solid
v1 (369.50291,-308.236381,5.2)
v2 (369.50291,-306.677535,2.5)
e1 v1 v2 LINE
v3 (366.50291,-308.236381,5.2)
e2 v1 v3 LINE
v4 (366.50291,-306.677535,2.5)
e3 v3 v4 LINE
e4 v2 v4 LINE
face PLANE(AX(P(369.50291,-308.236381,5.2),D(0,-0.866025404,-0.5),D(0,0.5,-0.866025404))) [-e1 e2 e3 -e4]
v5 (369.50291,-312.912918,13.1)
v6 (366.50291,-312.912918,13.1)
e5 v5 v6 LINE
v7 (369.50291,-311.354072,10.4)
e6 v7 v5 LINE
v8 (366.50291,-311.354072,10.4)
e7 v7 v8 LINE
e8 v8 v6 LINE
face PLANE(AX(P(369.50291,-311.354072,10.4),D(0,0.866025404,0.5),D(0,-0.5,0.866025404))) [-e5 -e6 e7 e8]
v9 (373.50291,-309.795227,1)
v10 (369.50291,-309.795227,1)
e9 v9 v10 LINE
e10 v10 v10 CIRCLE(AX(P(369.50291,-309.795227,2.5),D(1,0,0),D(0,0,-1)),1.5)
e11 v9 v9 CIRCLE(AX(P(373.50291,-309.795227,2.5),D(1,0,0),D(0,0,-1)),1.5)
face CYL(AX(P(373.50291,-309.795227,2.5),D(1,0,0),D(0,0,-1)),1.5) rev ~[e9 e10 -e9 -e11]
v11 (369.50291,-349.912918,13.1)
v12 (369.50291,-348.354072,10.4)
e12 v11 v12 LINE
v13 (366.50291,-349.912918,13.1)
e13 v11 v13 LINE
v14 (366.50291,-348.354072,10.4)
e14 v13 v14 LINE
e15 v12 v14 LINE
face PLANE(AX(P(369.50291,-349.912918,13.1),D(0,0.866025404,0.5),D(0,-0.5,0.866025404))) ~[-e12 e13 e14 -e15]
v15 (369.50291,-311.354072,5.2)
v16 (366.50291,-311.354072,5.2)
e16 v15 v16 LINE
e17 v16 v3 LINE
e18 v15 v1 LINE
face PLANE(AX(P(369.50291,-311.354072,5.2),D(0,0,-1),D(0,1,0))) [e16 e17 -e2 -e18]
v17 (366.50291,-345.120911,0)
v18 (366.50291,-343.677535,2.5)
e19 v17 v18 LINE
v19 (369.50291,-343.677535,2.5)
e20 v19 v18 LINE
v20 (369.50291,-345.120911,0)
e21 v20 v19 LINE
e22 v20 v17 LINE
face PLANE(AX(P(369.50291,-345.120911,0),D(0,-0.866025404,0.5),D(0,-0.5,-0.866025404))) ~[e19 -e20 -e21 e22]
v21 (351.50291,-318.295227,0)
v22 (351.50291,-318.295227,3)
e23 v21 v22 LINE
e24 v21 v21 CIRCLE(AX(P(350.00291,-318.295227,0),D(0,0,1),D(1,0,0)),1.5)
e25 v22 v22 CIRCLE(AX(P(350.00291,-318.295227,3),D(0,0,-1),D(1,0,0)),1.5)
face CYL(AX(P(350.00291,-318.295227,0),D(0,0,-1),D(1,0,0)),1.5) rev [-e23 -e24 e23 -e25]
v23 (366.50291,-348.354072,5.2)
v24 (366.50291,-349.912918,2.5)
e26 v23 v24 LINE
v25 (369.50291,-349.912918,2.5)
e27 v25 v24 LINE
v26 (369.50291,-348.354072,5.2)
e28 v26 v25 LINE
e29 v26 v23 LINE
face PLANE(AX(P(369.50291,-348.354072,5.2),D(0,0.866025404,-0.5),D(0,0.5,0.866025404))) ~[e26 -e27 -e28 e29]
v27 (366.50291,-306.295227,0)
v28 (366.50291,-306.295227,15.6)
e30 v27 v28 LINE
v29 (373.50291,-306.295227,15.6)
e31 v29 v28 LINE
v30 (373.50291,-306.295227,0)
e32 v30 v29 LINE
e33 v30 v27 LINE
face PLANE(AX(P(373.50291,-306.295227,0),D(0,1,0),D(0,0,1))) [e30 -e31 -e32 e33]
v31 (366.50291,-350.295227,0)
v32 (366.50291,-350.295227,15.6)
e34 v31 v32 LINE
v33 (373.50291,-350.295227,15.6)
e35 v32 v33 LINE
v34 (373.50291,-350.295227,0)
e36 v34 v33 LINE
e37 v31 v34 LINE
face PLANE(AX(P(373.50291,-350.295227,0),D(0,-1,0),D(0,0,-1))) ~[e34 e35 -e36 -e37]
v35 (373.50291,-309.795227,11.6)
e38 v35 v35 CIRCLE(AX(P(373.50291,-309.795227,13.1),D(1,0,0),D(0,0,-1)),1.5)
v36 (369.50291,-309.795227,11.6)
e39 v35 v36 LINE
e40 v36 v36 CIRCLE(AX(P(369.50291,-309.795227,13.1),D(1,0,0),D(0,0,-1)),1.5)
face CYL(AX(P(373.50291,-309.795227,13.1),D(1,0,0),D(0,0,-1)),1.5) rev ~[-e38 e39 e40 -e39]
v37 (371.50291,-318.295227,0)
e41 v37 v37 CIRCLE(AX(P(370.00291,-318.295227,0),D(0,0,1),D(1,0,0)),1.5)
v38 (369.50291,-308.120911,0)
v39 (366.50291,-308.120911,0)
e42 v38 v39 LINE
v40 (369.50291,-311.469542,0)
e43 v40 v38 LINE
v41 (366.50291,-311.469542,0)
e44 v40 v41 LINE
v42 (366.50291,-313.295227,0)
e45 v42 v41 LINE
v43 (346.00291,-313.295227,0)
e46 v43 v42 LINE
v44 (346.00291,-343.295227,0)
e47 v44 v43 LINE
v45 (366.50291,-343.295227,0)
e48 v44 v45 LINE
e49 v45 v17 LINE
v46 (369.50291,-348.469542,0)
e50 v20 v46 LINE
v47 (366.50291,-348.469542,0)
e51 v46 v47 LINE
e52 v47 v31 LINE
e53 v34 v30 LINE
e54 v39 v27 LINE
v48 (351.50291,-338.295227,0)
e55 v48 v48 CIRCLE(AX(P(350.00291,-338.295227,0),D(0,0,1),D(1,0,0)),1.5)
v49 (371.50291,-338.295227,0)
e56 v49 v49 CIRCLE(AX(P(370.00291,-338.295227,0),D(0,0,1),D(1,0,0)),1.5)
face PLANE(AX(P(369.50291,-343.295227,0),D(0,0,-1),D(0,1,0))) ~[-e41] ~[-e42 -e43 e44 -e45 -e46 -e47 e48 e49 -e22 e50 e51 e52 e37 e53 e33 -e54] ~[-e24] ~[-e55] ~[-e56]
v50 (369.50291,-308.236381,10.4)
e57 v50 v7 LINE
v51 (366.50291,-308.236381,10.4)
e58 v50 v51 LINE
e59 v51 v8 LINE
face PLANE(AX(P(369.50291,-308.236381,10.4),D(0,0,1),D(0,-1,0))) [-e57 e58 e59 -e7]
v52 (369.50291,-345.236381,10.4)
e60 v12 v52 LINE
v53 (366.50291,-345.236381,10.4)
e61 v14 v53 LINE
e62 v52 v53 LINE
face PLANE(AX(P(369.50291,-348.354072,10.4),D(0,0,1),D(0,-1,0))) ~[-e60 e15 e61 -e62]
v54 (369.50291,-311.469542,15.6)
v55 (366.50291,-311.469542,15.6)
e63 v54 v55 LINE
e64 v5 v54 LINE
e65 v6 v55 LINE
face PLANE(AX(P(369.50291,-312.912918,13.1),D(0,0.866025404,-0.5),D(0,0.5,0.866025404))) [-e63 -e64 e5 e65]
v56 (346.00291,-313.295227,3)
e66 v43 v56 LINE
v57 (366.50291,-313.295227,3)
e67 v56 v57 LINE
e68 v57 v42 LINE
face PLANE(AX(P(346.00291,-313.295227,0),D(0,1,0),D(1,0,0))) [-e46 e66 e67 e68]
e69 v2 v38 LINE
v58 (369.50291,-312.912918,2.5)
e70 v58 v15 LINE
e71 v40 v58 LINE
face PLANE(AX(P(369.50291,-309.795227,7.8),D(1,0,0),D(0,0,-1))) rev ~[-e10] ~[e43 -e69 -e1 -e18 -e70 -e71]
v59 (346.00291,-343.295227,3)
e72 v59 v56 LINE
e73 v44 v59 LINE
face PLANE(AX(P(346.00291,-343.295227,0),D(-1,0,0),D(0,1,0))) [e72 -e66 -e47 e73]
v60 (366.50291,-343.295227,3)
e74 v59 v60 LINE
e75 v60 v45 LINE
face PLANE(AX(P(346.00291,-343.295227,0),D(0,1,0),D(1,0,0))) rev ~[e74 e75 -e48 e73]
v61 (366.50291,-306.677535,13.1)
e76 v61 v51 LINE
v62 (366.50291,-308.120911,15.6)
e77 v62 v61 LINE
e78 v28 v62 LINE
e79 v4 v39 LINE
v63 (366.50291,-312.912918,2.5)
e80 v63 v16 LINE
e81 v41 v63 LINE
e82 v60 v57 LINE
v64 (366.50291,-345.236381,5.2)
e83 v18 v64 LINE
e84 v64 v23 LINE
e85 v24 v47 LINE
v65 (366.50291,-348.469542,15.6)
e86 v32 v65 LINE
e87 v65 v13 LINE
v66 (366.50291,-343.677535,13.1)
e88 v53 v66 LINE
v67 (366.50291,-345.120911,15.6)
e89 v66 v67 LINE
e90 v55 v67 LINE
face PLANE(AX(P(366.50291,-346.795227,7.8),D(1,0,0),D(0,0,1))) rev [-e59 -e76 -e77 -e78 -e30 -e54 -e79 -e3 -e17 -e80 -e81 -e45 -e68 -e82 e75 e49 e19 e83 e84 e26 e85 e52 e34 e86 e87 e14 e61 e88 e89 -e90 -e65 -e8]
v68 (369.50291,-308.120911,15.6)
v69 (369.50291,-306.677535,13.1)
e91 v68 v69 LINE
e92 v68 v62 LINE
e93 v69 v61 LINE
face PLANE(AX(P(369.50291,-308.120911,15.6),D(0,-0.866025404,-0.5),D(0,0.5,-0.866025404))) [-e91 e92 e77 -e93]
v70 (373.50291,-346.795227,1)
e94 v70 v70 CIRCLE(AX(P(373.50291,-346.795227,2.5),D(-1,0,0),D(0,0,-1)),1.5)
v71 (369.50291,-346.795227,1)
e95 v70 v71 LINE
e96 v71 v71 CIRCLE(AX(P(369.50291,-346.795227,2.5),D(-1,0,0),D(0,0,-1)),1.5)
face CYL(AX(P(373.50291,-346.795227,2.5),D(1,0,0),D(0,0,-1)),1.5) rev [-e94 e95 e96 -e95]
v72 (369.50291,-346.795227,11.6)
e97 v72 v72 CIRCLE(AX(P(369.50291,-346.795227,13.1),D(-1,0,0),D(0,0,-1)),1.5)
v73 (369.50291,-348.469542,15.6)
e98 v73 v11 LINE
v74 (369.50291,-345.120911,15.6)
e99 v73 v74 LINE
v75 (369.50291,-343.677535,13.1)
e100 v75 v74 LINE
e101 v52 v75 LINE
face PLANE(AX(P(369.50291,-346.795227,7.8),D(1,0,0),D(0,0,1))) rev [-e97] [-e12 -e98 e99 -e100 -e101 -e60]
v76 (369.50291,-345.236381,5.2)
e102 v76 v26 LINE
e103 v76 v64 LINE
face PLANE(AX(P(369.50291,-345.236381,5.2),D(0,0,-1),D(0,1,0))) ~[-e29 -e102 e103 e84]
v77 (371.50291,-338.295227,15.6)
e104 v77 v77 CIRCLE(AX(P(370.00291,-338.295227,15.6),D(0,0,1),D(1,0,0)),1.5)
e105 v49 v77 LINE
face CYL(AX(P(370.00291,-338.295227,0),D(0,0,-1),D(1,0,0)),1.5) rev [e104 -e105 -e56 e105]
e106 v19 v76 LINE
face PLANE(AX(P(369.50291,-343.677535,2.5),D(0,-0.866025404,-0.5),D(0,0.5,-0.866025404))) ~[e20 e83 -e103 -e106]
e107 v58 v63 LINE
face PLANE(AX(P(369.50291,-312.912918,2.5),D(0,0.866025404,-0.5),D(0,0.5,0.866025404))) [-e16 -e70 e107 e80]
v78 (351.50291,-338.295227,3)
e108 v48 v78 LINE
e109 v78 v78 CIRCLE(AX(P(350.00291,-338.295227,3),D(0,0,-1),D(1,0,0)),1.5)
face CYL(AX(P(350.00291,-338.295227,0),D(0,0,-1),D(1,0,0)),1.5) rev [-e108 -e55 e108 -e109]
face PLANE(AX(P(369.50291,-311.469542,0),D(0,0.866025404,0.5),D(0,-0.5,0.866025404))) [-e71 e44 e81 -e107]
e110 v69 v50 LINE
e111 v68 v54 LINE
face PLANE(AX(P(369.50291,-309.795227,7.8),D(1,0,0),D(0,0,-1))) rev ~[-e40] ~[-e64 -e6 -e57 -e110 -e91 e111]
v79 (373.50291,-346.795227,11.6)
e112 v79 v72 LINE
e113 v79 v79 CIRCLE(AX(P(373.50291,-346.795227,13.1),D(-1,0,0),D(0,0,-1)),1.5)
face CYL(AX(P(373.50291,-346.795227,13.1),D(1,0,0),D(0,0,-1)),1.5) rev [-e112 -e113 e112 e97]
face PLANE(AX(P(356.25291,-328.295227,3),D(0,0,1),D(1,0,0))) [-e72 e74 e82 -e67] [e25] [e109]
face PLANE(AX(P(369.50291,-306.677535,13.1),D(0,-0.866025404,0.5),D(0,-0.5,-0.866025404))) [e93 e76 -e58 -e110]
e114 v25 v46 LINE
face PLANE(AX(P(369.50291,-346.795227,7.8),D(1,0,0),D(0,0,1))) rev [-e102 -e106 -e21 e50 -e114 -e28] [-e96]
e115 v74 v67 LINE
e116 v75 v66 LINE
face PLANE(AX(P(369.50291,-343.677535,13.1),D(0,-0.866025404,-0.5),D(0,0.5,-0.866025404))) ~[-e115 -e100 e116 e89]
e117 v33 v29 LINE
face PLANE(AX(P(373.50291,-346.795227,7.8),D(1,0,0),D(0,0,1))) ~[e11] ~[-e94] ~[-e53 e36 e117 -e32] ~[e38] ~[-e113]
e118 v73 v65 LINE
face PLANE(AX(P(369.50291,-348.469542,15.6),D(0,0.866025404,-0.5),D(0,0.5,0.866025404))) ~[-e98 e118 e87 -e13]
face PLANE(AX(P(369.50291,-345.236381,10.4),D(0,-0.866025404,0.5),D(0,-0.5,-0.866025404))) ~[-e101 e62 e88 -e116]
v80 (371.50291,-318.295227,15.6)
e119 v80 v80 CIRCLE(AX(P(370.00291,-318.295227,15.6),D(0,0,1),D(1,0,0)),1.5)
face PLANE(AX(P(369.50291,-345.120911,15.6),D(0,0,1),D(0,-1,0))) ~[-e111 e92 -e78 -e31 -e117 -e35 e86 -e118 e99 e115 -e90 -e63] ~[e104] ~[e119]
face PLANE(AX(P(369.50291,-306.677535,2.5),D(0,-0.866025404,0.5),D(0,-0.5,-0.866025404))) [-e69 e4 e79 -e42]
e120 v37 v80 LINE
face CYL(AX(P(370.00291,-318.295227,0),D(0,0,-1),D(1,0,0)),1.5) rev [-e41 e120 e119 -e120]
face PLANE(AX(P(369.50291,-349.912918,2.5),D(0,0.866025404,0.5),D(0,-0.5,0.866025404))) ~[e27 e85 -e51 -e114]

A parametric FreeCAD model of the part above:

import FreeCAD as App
import Part
import Sketcher

V = App.Vector
Q = App.Units.Quantity

doc = App.newDocument("Part")
body = doc.addObject("PartDesign::Body", "Body")

# Sketch on XY plane
sketch1 = body.newObject("Sketcher::SketchObject", "Sketch")
sketch1.AttachmentSupport = (doc.getObject("XY_Plane"), [""])
sketch1.MapMode = "FlatFace"
sketch1.addGeometry([
    Part.LineSegment(V(346.00291, -313.295227, 0), V(346.00291, -343.295227, 0)),  # 0
    Part.LineSegment(V(346.00291, -343.295227, 0), V(373.50291, -343.295227, 0)),  # 1
    Part.LineSegment(V(373.50291, -343.295227, 0), V(373.50291, -313.295227, 0)),  # 2
    Part.LineSegment(V(373.50291, -313.295227, 0), V(346.00291, -313.295227, 0)),  # 3
    Part.Circle(V(350.00291, -338.295227, 0), V(0, 0, 1), 1.5),  # 4
    Part.Circle(V(370.00291, -338.295227, 0), V(0, 0, 1), 1.5),  # 5
    Part.Circle(V(350.00291, -318.295227, 0), V(0, 0, 1), 1.5),  # 6
    Part.Circle(V(370.00291, -318.295227, 0), V(0, 0, 1), 1.5),  # 7
], False)
sketch1.addConstraint([
    Sketcher.Constraint("Coincident", 0, 2, 1, 1),
    Sketcher.Constraint("Coincident", 1, 2, 2, 1),
    Sketcher.Constraint("Coincident", 2, 2, 3, 1),
    Sketcher.Constraint("Coincident", 3, 2, 0, 1),
    Sketcher.Constraint("Vertical", 0),
    Sketcher.Constraint("Horizontal", 1),
    Sketcher.Constraint("Vertical", 2),
    Sketcher.Constraint("Horizontal", 3),
    Sketcher.Constraint("Equal", 4, 5),
    Sketcher.Constraint("Equal", 5, 6),
    Sketcher.Constraint("Equal", 6, 7),
    Sketcher.Constraint("Horizontal", 4, 3, 5, 3),
    Sketcher.Constraint("Horizontal", 6, 3, 7, 3),
    Sketcher.Constraint("Vertical", 4, 3, 6, 3),
    Sketcher.Constraint("Vertical", 5, 3, 7, 3),
    Sketcher.Constraint("Diameter", 4, 3.0),
    Sketcher.Constraint("DistanceY", 0, 2, 0, 1, 30.0),
    Sketcher.Constraint("DistanceX", 1, 1, 1, 2, 27.5),
    Sketcher.Constraint("DistanceX", 4, 3, 5, 3, 20.0),
    Sketcher.Constraint("DistanceY", 4, 3, 6, 3, 20.0),
    Sketcher.Constraint("DistanceX", 0, 2, 4, 3, 4.0),
    Sketcher.Constraint("DistanceY", 0, 2, 4, 3, 5.0),
    Sketcher.Constraint("DistanceX", -1, 1, 4, 3, 350.00291),
    Sketcher.Constraint("DistanceY", 4, 3, -1, 1, 338.295227),
])
pad1 = body.newObject("PartDesign::Pad", "Pad")
pad1.Profile = sketch1
pad1.Length = 5

# Sketch on XY plane
sketch2 = body.newObject("Sketcher::SketchObject", "Sketch001")
sketch2.AttachmentSupport = (doc.getObject("XY_Plane"), [""])
sketch2.MapMode = "FlatFace"
sketch2.addGeometry([
    Part.LineSegment(V(366.50291, -313.295227, 0), V(366.50291, -343.295227, 0)),  # 0
    Part.LineSegment(V(366.50291, -343.295227, 0), V(373.50291, -343.295227, 0)),  # 1
    Part.LineSegment(V(373.50291, -343.295227, 0), V(373.50291, -313.295227, 0)),  # 2
    Part.LineSegment(V(373.50291, -313.295227, 0), V(366.50291, -313.295227, 0)),  # 3
    Part.Circle(V(370.00291, -338.295227, 0), V(0, 0, 1), 1.5),  # 4
    Part.Circle(V(370.00291, -318.295227, 0), V(0, 0, 1), 1.5),  # 5
], False)
sketch2.addConstraint([
    Sketcher.Constraint("Coincident", 0, 2, 1, 1),
    Sketcher.Constraint("Coincident", 1, 2, 2, 1),
    Sketcher.Constraint("Coincident", 2, 2, 3, 1),
    Sketcher.Constraint("Coincident", 3, 2, 0, 1),
    Sketcher.Constraint("Vertical", 0),
    Sketcher.Constraint("Horizontal", 1),
    Sketcher.Constraint("Vertical", 2),
    Sketcher.Constraint("Horizontal", 3),
    Sketcher.Constraint("Equal", 4, 5),
    Sketcher.Constraint("Vertical", 4, 3, 5, 3),
    Sketcher.Constraint("Diameter", 4, 3.0),
    Sketcher.Constraint("DistanceX", 1, 1, 1, 2, 7.0),
    Sketcher.Constraint("DistanceY", 0, 2, 0, 1, 30.0),
    Sketcher.Constraint("DistanceY", 4, 3, 5, 3, 20.0),
    Sketcher.Constraint("DistanceY", 0, 2, 4, 3, 5.0),
    Sketcher.Constraint("DistanceX", 0, 2, 4, 3, 3.5),
    Sketcher.Constraint("DistanceX", -1, 1, 4, 3, 370.00291),
    Sketcher.Constraint("DistanceY", 4, 3, -1, 1, 338.295227),
])
pad2 = body.newObject("PartDesign::Pad", "Pad001")
pad2.Profile = sketch2
pad2.Length = 15.6

# Sketch on YZ plane
sketch3 = body.newObject("Sketcher::SketchObject", "Sketch002")
sketch3.AttachmentSupport = (doc.getObject("YZ_Plane"), [""])
sketch3.MapMode = "FlatFace"
sketch3.AttachmentOffset = App.Placement(V(0, 0, 373.50291), App.Rotation())
sketch3.addGeometry([
    Part.LineSegment(V(-313.295227, 15.6, 0), V(-313.295227, 0, 0)),  # 0
    Part.LineSegment(V(-313.295227, 0, 0), V(-306.295227, 0, 0)),  # 1
    Part.LineSegment(V(-306.295227, 0, 0), V(-306.295227, 15.6, 0)),  # 2
    Part.LineSegment(V(-306.295227, 15.6, 0), V(-313.295227, 15.6, 0)),  # 3
    Part.Circle(V(-309.795227, 13.1, 0), V(0, 0, 1), 1.5),  # 4
    Part.Circle(V(-309.795227, 2.5, 0), V(0, 0, 1), 1.5),  # 5
], False)
sketch3.addConstraint([
    Sketcher.Constraint("Coincident", 0, 2, 1, 1),
    Sketcher.Constraint("Coincident", 1, 2, 2, 1),
    Sketcher.Constraint("Coincident", 2, 2, 3, 1),
    Sketcher.Constraint("Coincident", 3, 2, 0, 1),
    Sketcher.Constraint("Vertical", 0),
    Sketcher.Constraint("Horizontal", 1),
    Sketcher.Constraint("Vertical", 2),
    Sketcher.Constraint("Horizontal", 3),
    Sketcher.Constraint("Equal", 4, 5),
    Sketcher.Constraint("PointOnObject", 0, 2, -1),
    Sketcher.Constraint("Vertical", 4, 3, 5, 3),
    Sketcher.Constraint("Diameter", 4, 3.0),
    Sketcher.Constraint("DistanceX", 1, 1, 1, 2, 7.0),
    Sketcher.Constraint("DistanceY", 0, 2, 0, 1, 15.6),
    Sketcher.Constraint("DistanceY", -1, 1, 4, 3, 13.1),
    Sketcher.Constraint("DistanceY", -1, 1, 5, 3, 2.5),
    Sketcher.Constraint("DistanceX", 0, 2, 5, 3, 3.5),
    Sketcher.Constraint("DistanceX", 4, 3, -1, 1, 309.795227),
])
pad3 = body.newObject("PartDesign::Pad", "Pad002")
pad3.Profile = sketch3
pad3.Length = 4
pad3.Reversed = True

# Sketch on YZ plane
sketch4 = body.newObject("Sketcher::SketchObject", "Sketch003")
sketch4.AttachmentSupport = (doc.getObject("YZ_Plane"), [""])
sketch4.MapMode = "FlatFace"
sketch4.AttachmentOffset = App.Placement(V(0, 0, 369.50291), App.Rotation())
sketch4.addGeometry([
    Part.LineSegment(V(-311.469542, 15.6, 0), V(-313.295227, 15.6, 0)),  # 0
    Part.LineSegment(V(-313.295227, 15.6, 0), V(-313.295227, 0, 0)),  # 1
    Part.LineSegment(V(-313.295227, 0, 0), V(-311.469542, 0, 0)),  # 2
    Part.LineSegment(V(-311.469542, 0, 0), V(-312.912918, 2.5, 0)),  # 3
    Part.LineSegment(V(-312.912918, 2.5, 0), V(-311.354072, 5.2, 0)),  # 4
    Part.LineSegment(V(-311.354072, 5.2, 0), V(-308.236381, 5.2, 0)),  # 5
    Part.LineSegment(V(-308.236381, 5.2, 0), V(-306.677535, 2.5, 0)),  # 6
    Part.LineSegment(V(-306.677535, 2.5, 0), V(-308.120911, 0, 0)),  # 7
    Part.LineSegment(V(-308.120911, 0, 0), V(-306.295227, 0, 0)),  # 8
    Part.LineSegment(V(-306.295227, 0, 0), V(-306.295227, 15.6, 0)),  # 9
    Part.LineSegment(V(-306.295227, 15.6, 0), V(-308.120911, 15.6, 0)),  # 10
    Part.LineSegment(V(-308.120911, 15.6, 0), V(-306.677535, 13.1, 0)),  # 11
    Part.LineSegment(V(-306.677535, 13.1, 0), V(-308.236381, 10.4, 0)),  # 12
    Part.LineSegment(V(-308.236381, 10.4, 0), V(-311.354072, 10.4, 0)),  # 13
    Part.LineSegment(V(-311.354072, 10.4, 0), V(-312.912918, 13.1, 0)),  # 14
    Part.LineSegment(V(-312.912918, 13.1, 0), V(-311.469542, 15.6, 0)),  # 15
], False)
sketch4.addConstraint([
    Sketcher.Constraint("Coincident", 0, 2, 1, 1),
    Sketcher.Constraint("Coincident", 1, 2, 2, 1),
    Sketcher.Constraint("Coincident", 2, 2, 3, 1),
    Sketcher.Constraint("Coincident", 3, 2, 4, 1),
    Sketcher.Constraint("Coincident", 4, 2, 5, 1),
    Sketcher.Constraint("Coincident", 5, 2, 6, 1),
    Sketcher.Constraint("Coincident", 6, 2, 7, 1),
    Sketcher.Constraint("Coincident", 7, 2, 8, 1),
    Sketcher.Constraint("Coincident", 8, 2, 9, 1),
    Sketcher.Constraint("Coincident", 9, 2, 10, 1),
    Sketcher.Constraint("Coincident", 10, 2, 11, 1),
    Sketcher.Constraint("Coincident", 11, 2, 12, 1),
    Sketcher.Constraint("Coincident", 12, 2, 13, 1),
    Sketcher.Constraint("Coincident", 13, 2, 14, 1),
    Sketcher.Constraint("Coincident", 14, 2, 15, 1),
    Sketcher.Constraint("Coincident", 15, 2, 0, 1),
    Sketcher.Constraint("Horizontal", 0),
    Sketcher.Constraint("Vertical", 1),
    Sketcher.Constraint("Horizontal", 2),
    Sketcher.Constraint("Horizontal", 5),
    Sketcher.Constraint("Horizontal", 8),
    Sketcher.Constraint("Vertical", 9),
    Sketcher.Constraint("Horizontal", 10),
    Sketcher.Constraint("Horizontal", 13),
    Sketcher.Constraint("PointOnObject", 1, 2, -1),
    Sketcher.Constraint("PointOnObject", 7, 2, -1),
    Sketcher.Constraint("Parallel", 3, 6),
    Sketcher.Constraint("Parallel", 4, 7),
    Sketcher.Constraint("Parallel", 6, 11),
    Sketcher.Constraint("Parallel", 7, 12),
    Sketcher.Constraint("Parallel", 11, 14),
    Sketcher.Constraint("Parallel", 12, 15),
    Sketcher.Constraint("Horizontal", 3, 2, 6, 2),
    Sketcher.Constraint("Horizontal", 0, 2, 9, 2),
    Sketcher.Constraint("Horizontal", 11, 2, 14, 2),
    Sketcher.Constraint("Vertical", 7, 2, 10, 2),
    Sketcher.Constraint("Vertical", 6, 2, 11, 2),
    Sketcher.Constraint("Vertical", 5, 2, 12, 2),
    Sketcher.Constraint("Vertical", 4, 2, 13, 2),
    Sketcher.Constraint("Vertical", 3, 2, 14, 2),
    Sketcher.Constraint("Equal", 2, 8),
    Sketcher.Constraint("Angle", 3, Q("120 deg")),
    Sketcher.Constraint("DistanceY", 1, 2, 1, 1, 15.6),
    Sketcher.Constraint("DistanceX", 1, 2, 8, 2, 7.0),
    Sketcher.Constraint("DistanceY", -1, 1, 3, 2, 2.5),
    Sketcher.Constraint("DistanceY", -1, 1, 4, 2, 5.2),
    Sketcher.Constraint("DistanceX", 5, 1, 5, 2, 3.117691),
    Sketcher.Constraint("DistanceX", 3, 2, -1, 1, 312.912918),
])
pad4 = body.newObject("PartDesign::Pad", "Pad003")
pad4.Profile = sketch4
pad4.Length = 3
pad4.Reversed = True
doc.recompute()

datumplane = body.newObject("PartDesign::Plane", "DatumPlane")
datumplane.AttachmentSupport = (doc.getObject("XZ_Plane"), [""])
datumplane.MapMode = "FlatFace"
datumplane.AttachmentOffset = App.Placement(V(0, 0, 328.295227), App.Rotation())
mirrored = body.newObject("PartDesign::Mirrored", "Mirrored")
mirrored.Originals = [pad3, pad4]
mirrored.MirrorPlane = (datumplane, [""])
body.Tip = mirrored

# Sketch on XY plane
sketch5 = body.newObject("Sketcher::SketchObject", "Sketch004")
sketch5.AttachmentSupport = (doc.getObject("XY_Plane"), [""])
sketch5.MapMode = "FlatFace"
sketch5.AttachmentOffset = App.Placement(V(0, 0, 5), App.Rotation())
sketch5.addGeometry([
    Part.LineSegment(V(346.00291, -313.295227, 0), V(346.00291, -343.295227, 0)),
    Part.LineSegment(V(346.00291, -343.295227, 0), V(366.50291, -343.295227, 0)),
    Part.LineSegment(V(366.50291, -343.295227, 0), V(366.50291, -313.295227, 0)),
    Part.LineSegment(V(366.50291, -313.295227, 0), V(346.00291, -313.295227, 0)),
], False)
sketch5.addConstraint([
    Sketcher.Constraint("Coincident", 0, 2, 1, 1),
    Sketcher.Constraint("Coincident", 1, 2, 2, 1),
    Sketcher.Constraint("Coincident", 2, 2, 3, 1),
    Sketcher.Constraint("Coincident", 3, 2, 0, 1),
    Sketcher.Constraint("Vertical", 0),
    Sketcher.Constraint("Horizontal", 1),
    Sketcher.Constraint("Vertical", 2),
    Sketcher.Constraint("Horizontal", 3),
    Sketcher.Constraint("DistanceY", 0, 2, 0, 1, 30.0),
    Sketcher.Constraint("DistanceX", 1, 1, 1, 2, 20.5),
    Sketcher.Constraint("DistanceX", -1, 1, 0, 2, 346.00291),
    Sketcher.Constraint("DistanceY", 0, 2, -1, 1, 343.295227),
])
pocket1 = body.newObject("PartDesign::Pocket", "Pocket")
pocket1.Profile = sketch5
pocket1.Length = 2

doc.recompute()
